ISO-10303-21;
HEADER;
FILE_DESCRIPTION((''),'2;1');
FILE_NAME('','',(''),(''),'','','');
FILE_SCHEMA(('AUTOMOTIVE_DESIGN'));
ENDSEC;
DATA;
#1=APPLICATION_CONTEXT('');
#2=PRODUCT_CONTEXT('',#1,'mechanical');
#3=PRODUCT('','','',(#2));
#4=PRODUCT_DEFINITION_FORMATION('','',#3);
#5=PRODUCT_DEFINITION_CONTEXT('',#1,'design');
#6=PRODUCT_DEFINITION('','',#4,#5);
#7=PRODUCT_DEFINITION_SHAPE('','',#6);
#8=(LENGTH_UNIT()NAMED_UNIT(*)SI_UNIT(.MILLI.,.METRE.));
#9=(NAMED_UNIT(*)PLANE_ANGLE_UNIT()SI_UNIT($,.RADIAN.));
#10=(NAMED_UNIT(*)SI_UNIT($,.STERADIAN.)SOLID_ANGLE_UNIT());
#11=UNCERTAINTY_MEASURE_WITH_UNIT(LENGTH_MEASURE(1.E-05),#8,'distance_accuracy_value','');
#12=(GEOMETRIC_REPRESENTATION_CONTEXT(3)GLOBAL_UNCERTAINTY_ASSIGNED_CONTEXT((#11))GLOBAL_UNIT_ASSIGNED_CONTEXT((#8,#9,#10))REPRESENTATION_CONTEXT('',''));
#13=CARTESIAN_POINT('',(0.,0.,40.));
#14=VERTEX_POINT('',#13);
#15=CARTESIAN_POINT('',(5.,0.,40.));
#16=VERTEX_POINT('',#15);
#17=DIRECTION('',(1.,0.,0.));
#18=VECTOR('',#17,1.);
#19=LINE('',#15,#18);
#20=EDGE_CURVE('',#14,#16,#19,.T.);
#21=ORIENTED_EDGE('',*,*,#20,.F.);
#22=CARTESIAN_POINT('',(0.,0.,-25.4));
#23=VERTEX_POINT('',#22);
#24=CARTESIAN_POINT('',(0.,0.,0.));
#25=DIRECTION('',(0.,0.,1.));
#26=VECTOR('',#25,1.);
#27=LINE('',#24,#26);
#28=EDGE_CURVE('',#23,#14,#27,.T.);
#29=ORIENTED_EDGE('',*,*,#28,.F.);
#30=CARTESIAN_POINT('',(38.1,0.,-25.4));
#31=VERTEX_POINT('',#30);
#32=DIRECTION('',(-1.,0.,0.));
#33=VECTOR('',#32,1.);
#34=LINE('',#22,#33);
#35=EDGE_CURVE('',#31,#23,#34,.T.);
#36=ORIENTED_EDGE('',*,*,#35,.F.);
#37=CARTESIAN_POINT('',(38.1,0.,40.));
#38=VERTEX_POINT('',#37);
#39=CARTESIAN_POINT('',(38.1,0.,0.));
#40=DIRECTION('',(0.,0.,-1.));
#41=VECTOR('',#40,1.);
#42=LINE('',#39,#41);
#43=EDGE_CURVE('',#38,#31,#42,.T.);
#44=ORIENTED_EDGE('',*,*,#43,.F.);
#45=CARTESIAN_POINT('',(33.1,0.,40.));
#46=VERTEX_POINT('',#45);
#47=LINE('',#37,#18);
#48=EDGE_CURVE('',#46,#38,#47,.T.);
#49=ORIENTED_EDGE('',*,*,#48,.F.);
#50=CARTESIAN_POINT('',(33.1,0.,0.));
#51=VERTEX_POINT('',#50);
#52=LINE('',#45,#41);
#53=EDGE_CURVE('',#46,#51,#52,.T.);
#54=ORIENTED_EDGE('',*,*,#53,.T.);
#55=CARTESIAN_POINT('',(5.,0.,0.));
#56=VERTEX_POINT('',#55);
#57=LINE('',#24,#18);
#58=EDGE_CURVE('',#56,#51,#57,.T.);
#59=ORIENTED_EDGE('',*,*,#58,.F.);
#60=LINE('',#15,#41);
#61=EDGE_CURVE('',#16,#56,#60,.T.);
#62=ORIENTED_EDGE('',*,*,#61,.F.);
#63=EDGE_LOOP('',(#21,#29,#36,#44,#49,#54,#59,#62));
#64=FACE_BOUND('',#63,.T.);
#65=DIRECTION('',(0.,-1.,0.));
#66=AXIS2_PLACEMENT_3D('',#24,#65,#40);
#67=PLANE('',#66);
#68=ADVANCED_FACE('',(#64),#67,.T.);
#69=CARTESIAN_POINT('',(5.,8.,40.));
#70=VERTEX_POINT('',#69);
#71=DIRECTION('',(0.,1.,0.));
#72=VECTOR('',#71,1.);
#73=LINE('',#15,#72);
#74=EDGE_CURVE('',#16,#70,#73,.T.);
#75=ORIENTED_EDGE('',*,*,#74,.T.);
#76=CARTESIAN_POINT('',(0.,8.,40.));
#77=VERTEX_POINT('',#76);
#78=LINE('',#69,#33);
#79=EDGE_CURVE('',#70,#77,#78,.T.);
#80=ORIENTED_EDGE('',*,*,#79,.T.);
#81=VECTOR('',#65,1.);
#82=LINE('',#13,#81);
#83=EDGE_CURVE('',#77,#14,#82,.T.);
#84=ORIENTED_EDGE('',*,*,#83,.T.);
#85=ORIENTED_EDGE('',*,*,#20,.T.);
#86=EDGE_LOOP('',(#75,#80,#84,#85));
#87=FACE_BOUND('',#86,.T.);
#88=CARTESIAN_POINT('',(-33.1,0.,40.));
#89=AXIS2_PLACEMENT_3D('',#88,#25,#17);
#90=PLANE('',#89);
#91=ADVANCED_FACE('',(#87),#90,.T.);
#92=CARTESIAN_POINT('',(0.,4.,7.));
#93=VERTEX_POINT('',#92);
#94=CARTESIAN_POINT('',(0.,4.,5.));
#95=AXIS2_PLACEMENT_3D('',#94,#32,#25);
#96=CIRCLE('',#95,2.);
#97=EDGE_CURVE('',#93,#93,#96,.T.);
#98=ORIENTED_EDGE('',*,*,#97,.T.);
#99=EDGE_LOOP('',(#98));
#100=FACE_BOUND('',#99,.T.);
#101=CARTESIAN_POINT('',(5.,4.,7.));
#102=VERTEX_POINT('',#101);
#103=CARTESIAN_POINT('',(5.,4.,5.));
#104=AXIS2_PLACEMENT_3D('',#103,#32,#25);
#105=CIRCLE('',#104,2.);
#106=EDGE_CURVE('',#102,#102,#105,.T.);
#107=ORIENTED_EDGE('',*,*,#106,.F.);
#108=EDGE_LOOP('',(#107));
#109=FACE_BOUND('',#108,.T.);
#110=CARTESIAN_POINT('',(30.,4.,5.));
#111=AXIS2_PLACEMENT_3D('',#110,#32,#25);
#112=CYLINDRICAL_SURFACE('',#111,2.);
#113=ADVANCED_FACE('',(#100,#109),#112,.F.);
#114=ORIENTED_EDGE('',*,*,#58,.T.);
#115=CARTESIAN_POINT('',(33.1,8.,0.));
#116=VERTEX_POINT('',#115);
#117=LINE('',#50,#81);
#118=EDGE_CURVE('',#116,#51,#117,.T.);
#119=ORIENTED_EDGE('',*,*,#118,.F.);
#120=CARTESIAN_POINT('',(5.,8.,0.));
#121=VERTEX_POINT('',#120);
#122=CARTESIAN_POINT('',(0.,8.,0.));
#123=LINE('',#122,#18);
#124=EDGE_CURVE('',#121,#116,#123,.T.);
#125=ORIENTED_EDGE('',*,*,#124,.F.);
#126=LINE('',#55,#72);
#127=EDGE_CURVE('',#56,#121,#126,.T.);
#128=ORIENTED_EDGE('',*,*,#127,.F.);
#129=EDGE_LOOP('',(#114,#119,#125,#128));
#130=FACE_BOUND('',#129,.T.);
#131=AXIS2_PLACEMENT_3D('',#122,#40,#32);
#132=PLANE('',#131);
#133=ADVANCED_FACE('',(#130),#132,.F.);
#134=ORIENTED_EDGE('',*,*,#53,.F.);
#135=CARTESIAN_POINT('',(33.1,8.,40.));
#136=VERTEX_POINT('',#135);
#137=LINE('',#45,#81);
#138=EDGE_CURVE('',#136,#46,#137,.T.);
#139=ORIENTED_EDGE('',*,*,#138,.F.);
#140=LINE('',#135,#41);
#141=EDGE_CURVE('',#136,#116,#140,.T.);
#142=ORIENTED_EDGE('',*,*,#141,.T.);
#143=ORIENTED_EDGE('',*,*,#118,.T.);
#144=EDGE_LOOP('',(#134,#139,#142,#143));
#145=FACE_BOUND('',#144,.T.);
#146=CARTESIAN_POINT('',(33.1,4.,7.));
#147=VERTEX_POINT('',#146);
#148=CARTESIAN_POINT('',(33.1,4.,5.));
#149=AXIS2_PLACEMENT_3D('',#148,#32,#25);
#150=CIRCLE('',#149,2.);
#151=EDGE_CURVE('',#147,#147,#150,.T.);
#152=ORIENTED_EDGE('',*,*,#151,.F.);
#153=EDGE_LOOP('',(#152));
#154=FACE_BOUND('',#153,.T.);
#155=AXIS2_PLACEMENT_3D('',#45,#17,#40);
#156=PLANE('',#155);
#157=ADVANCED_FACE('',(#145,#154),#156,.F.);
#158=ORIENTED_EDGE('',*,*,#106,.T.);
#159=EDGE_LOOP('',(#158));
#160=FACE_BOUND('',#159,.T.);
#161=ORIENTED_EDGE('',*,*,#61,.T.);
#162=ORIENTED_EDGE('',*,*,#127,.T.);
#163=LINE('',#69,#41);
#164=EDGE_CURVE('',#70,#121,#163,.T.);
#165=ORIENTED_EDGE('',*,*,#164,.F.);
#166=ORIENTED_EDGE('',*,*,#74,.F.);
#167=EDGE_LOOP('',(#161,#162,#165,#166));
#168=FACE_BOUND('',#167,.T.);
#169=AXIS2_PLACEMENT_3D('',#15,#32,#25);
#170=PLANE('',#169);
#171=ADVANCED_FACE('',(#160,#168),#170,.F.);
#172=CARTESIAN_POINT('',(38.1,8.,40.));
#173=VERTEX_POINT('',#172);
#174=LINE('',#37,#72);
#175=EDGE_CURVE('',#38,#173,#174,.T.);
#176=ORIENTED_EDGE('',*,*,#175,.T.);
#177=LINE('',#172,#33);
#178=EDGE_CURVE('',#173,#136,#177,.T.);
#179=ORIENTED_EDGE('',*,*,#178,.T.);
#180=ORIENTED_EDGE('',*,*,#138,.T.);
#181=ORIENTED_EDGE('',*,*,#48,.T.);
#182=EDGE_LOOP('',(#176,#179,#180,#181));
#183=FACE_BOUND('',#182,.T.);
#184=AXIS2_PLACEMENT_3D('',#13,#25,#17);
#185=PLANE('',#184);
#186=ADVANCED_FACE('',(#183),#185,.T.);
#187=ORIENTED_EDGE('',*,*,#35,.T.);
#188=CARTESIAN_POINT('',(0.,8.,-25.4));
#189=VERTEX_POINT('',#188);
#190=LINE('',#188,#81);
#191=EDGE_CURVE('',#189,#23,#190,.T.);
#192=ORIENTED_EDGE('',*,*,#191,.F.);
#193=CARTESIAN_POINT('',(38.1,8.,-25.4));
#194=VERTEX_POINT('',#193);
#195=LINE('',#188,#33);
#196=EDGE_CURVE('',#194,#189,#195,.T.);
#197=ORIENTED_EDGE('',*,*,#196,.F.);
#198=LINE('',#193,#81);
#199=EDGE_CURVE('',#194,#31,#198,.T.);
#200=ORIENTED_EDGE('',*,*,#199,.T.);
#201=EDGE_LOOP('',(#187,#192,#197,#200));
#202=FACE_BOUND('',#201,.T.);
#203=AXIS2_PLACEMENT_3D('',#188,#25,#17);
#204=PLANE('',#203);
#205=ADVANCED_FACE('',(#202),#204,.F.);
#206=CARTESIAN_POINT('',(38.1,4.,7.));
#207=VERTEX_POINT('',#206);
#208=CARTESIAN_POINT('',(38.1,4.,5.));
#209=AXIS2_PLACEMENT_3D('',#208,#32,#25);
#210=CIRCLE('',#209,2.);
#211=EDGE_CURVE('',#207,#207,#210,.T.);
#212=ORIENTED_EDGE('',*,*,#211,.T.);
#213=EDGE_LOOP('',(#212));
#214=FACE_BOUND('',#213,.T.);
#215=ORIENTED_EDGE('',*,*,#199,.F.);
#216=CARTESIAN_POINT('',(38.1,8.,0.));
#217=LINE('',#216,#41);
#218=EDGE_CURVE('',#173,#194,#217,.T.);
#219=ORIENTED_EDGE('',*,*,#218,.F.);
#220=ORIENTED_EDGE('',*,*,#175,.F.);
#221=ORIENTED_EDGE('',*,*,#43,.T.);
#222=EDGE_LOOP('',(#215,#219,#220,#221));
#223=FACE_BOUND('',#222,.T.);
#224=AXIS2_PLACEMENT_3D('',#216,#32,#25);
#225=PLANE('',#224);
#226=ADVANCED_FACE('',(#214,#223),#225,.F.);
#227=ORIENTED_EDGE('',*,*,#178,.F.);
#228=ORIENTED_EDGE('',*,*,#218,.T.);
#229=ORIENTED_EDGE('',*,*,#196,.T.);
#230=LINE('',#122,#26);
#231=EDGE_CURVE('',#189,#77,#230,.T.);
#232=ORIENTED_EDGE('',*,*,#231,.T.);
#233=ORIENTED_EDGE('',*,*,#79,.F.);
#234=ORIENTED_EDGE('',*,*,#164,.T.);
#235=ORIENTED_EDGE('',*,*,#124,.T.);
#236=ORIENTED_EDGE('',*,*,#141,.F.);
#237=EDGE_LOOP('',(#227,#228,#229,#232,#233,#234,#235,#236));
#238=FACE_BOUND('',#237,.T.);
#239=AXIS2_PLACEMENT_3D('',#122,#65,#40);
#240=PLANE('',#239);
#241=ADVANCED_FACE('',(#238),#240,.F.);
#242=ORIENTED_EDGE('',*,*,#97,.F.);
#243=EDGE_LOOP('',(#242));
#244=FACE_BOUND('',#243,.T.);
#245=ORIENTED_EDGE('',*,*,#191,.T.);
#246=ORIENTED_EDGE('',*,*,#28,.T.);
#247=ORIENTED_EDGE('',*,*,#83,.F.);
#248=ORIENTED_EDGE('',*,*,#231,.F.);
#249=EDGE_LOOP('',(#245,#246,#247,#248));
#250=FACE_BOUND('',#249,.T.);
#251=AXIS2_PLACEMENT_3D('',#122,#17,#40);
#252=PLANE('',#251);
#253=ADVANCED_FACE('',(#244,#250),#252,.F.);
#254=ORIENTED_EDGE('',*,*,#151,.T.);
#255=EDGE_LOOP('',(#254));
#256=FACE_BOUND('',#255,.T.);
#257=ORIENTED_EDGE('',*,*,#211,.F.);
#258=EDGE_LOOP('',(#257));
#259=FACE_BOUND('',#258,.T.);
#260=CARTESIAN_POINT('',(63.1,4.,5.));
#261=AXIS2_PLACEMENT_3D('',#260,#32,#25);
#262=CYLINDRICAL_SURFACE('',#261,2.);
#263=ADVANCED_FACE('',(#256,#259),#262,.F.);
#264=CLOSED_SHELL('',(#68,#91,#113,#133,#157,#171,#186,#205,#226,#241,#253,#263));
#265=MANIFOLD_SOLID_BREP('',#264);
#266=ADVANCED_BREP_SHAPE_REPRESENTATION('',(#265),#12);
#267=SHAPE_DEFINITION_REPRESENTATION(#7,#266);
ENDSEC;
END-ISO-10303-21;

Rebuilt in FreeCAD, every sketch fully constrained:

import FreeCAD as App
import Part
import Sketcher
from FreeCAD import Vector

doc = App.newDocument("Part")
body = doc.addObject("PartDesign::Body", "Body")

sketch1 = body.newObject("Sketcher::SketchObject", "Sketch")
sketch1.AttachmentSupport = (doc.getObject("XZ_Plane"), [""])
sketch1.MapMode = "FlatFace"
sketch1.addGeometry([
    Part.LineSegment(Vector(0, -25, 0), Vector(0, 0, 0)),
    Part.LineSegment(Vector(0, 0, 0), Vector(38, 0, 0)),
    Part.LineSegment(Vector(38, 0, 0), Vector(38, -25, 0)),
    Part.LineSegment(Vector(38, -25, 0), Vector(0, -25, 0)),
], False)
sketch1.addConstraint([
    Sketcher.Constraint("Coincident", 0, 2, 1, 1),
    Sketcher.Constraint("Coincident", 1, 2, 2, 1),
    Sketcher.Constraint("Coincident", 2, 2, 3, 1),
    Sketcher.Constraint("Coincident", 3, 2, 0, 1),
    Sketcher.Constraint("Vertical", 0),
    Sketcher.Constraint("Horizontal", 1),
    Sketcher.Constraint("Vertical", 2),
    Sketcher.Constraint("Horizontal", 3),
    Sketcher.Constraint("Coincident", 0, 2, -1, 1),
    Sketcher.Constraint("DistanceX", 1, 1, 1, 2, 38.1),
    Sketcher.Constraint("DistanceY", 0, 1, 0, 2, 25.4),
])
pad1 = body.newObject("PartDesign::Pad", "Pad")
pad1.Profile = sketch1
pad1.Length = 8
pad1.Reversed = True

sketch2 = body.newObject("Sketcher::SketchObject", "Sketch001")
sketch2.AttachmentSupport = (doc.getObject("XY_Plane"), [""])
sketch2.MapMode = "FlatFace"
sketch2.addGeometry([
    Part.LineSegment(Vector(33, 8, 0), Vector(33, 0, 0)),
    Part.LineSegment(Vector(33, 0, 0), Vector(38, 0, 0)),
    Part.LineSegment(Vector(38, 0, 0), Vector(38, 8, 0)),
    Part.LineSegment(Vector(38, 8, 0), Vector(33, 8, 0)),
], False)
sketch2.addConstraint([
    Sketcher.Constraint("Coincident", 0, 2, 1, 1),
    Sketcher.Constraint("Coincident", 1, 2, 2, 1),
    Sketcher.Constraint("Coincident", 2, 2, 3, 1),
    Sketcher.Constraint("Coincident", 3, 2, 0, 1),
    Sketcher.Constraint("Vertical", 0),
    Sketcher.Constraint("Horizontal", 1),
    Sketcher.Constraint("Vertical", 2),
    Sketcher.Constraint("Horizontal", 3),
    Sketcher.Constraint("PointOnObject", 0, 2, -1),
    Sketcher.Constraint("DistanceX", 1, 1, 1, 2, 5.0),
    Sketcher.Constraint("DistanceY", 0, 2, 0, 1, 8.0),
    Sketcher.Constraint("DistanceX", -1, 1, 0, 2, 33.1),
])
pad2 = body.newObject("PartDesign::Pad", "Pad001")
pad2.Profile = sketch2
pad2.Length = 40

sketch3 = body.newObject("Sketcher::SketchObject", "Sketch002")
sketch3.AttachmentSupport = (doc.getObject("YZ_Plane"), [""])
sketch3.MapMode = "FlatFace"
sketch3.AttachmentOffset = App.Placement(Vector(0, 0, 33.1), App.Rotation())
sketch3.addGeometry(Part.Circle(Vector(4, 5, 0), Vector(0, 0, 1), 2), False)
sketch3.addConstraint([
    Sketcher.Constraint("Diameter", 0, 4.0),
    Sketcher.Constraint("DistanceX", -1, 1, 0, 3, 4.0),
    Sketcher.Constraint("DistanceY", -1, 1, 0, 3, 5.0),
])
pocket1 = body.newObject("PartDesign::Pocket", "Pocket")
pocket1.Profile = sketch3
pocket1.Length = 30
pocket1.Reversed = True
doc.recompute()

linearpattern = body.newObject("PartDesign::LinearPattern", "LinearPattern")
linearpattern.Originals = [pad2, pocket1]
linearpattern.Direction = (doc.getObject("X_Axis"), [""])
linearpattern.Mode = "offset"
linearpattern.Offset = 33.1
linearpattern.Occurrences = 2
linearpattern.Reversed = True
body.Tip = linearpattern

doc.recompute()
